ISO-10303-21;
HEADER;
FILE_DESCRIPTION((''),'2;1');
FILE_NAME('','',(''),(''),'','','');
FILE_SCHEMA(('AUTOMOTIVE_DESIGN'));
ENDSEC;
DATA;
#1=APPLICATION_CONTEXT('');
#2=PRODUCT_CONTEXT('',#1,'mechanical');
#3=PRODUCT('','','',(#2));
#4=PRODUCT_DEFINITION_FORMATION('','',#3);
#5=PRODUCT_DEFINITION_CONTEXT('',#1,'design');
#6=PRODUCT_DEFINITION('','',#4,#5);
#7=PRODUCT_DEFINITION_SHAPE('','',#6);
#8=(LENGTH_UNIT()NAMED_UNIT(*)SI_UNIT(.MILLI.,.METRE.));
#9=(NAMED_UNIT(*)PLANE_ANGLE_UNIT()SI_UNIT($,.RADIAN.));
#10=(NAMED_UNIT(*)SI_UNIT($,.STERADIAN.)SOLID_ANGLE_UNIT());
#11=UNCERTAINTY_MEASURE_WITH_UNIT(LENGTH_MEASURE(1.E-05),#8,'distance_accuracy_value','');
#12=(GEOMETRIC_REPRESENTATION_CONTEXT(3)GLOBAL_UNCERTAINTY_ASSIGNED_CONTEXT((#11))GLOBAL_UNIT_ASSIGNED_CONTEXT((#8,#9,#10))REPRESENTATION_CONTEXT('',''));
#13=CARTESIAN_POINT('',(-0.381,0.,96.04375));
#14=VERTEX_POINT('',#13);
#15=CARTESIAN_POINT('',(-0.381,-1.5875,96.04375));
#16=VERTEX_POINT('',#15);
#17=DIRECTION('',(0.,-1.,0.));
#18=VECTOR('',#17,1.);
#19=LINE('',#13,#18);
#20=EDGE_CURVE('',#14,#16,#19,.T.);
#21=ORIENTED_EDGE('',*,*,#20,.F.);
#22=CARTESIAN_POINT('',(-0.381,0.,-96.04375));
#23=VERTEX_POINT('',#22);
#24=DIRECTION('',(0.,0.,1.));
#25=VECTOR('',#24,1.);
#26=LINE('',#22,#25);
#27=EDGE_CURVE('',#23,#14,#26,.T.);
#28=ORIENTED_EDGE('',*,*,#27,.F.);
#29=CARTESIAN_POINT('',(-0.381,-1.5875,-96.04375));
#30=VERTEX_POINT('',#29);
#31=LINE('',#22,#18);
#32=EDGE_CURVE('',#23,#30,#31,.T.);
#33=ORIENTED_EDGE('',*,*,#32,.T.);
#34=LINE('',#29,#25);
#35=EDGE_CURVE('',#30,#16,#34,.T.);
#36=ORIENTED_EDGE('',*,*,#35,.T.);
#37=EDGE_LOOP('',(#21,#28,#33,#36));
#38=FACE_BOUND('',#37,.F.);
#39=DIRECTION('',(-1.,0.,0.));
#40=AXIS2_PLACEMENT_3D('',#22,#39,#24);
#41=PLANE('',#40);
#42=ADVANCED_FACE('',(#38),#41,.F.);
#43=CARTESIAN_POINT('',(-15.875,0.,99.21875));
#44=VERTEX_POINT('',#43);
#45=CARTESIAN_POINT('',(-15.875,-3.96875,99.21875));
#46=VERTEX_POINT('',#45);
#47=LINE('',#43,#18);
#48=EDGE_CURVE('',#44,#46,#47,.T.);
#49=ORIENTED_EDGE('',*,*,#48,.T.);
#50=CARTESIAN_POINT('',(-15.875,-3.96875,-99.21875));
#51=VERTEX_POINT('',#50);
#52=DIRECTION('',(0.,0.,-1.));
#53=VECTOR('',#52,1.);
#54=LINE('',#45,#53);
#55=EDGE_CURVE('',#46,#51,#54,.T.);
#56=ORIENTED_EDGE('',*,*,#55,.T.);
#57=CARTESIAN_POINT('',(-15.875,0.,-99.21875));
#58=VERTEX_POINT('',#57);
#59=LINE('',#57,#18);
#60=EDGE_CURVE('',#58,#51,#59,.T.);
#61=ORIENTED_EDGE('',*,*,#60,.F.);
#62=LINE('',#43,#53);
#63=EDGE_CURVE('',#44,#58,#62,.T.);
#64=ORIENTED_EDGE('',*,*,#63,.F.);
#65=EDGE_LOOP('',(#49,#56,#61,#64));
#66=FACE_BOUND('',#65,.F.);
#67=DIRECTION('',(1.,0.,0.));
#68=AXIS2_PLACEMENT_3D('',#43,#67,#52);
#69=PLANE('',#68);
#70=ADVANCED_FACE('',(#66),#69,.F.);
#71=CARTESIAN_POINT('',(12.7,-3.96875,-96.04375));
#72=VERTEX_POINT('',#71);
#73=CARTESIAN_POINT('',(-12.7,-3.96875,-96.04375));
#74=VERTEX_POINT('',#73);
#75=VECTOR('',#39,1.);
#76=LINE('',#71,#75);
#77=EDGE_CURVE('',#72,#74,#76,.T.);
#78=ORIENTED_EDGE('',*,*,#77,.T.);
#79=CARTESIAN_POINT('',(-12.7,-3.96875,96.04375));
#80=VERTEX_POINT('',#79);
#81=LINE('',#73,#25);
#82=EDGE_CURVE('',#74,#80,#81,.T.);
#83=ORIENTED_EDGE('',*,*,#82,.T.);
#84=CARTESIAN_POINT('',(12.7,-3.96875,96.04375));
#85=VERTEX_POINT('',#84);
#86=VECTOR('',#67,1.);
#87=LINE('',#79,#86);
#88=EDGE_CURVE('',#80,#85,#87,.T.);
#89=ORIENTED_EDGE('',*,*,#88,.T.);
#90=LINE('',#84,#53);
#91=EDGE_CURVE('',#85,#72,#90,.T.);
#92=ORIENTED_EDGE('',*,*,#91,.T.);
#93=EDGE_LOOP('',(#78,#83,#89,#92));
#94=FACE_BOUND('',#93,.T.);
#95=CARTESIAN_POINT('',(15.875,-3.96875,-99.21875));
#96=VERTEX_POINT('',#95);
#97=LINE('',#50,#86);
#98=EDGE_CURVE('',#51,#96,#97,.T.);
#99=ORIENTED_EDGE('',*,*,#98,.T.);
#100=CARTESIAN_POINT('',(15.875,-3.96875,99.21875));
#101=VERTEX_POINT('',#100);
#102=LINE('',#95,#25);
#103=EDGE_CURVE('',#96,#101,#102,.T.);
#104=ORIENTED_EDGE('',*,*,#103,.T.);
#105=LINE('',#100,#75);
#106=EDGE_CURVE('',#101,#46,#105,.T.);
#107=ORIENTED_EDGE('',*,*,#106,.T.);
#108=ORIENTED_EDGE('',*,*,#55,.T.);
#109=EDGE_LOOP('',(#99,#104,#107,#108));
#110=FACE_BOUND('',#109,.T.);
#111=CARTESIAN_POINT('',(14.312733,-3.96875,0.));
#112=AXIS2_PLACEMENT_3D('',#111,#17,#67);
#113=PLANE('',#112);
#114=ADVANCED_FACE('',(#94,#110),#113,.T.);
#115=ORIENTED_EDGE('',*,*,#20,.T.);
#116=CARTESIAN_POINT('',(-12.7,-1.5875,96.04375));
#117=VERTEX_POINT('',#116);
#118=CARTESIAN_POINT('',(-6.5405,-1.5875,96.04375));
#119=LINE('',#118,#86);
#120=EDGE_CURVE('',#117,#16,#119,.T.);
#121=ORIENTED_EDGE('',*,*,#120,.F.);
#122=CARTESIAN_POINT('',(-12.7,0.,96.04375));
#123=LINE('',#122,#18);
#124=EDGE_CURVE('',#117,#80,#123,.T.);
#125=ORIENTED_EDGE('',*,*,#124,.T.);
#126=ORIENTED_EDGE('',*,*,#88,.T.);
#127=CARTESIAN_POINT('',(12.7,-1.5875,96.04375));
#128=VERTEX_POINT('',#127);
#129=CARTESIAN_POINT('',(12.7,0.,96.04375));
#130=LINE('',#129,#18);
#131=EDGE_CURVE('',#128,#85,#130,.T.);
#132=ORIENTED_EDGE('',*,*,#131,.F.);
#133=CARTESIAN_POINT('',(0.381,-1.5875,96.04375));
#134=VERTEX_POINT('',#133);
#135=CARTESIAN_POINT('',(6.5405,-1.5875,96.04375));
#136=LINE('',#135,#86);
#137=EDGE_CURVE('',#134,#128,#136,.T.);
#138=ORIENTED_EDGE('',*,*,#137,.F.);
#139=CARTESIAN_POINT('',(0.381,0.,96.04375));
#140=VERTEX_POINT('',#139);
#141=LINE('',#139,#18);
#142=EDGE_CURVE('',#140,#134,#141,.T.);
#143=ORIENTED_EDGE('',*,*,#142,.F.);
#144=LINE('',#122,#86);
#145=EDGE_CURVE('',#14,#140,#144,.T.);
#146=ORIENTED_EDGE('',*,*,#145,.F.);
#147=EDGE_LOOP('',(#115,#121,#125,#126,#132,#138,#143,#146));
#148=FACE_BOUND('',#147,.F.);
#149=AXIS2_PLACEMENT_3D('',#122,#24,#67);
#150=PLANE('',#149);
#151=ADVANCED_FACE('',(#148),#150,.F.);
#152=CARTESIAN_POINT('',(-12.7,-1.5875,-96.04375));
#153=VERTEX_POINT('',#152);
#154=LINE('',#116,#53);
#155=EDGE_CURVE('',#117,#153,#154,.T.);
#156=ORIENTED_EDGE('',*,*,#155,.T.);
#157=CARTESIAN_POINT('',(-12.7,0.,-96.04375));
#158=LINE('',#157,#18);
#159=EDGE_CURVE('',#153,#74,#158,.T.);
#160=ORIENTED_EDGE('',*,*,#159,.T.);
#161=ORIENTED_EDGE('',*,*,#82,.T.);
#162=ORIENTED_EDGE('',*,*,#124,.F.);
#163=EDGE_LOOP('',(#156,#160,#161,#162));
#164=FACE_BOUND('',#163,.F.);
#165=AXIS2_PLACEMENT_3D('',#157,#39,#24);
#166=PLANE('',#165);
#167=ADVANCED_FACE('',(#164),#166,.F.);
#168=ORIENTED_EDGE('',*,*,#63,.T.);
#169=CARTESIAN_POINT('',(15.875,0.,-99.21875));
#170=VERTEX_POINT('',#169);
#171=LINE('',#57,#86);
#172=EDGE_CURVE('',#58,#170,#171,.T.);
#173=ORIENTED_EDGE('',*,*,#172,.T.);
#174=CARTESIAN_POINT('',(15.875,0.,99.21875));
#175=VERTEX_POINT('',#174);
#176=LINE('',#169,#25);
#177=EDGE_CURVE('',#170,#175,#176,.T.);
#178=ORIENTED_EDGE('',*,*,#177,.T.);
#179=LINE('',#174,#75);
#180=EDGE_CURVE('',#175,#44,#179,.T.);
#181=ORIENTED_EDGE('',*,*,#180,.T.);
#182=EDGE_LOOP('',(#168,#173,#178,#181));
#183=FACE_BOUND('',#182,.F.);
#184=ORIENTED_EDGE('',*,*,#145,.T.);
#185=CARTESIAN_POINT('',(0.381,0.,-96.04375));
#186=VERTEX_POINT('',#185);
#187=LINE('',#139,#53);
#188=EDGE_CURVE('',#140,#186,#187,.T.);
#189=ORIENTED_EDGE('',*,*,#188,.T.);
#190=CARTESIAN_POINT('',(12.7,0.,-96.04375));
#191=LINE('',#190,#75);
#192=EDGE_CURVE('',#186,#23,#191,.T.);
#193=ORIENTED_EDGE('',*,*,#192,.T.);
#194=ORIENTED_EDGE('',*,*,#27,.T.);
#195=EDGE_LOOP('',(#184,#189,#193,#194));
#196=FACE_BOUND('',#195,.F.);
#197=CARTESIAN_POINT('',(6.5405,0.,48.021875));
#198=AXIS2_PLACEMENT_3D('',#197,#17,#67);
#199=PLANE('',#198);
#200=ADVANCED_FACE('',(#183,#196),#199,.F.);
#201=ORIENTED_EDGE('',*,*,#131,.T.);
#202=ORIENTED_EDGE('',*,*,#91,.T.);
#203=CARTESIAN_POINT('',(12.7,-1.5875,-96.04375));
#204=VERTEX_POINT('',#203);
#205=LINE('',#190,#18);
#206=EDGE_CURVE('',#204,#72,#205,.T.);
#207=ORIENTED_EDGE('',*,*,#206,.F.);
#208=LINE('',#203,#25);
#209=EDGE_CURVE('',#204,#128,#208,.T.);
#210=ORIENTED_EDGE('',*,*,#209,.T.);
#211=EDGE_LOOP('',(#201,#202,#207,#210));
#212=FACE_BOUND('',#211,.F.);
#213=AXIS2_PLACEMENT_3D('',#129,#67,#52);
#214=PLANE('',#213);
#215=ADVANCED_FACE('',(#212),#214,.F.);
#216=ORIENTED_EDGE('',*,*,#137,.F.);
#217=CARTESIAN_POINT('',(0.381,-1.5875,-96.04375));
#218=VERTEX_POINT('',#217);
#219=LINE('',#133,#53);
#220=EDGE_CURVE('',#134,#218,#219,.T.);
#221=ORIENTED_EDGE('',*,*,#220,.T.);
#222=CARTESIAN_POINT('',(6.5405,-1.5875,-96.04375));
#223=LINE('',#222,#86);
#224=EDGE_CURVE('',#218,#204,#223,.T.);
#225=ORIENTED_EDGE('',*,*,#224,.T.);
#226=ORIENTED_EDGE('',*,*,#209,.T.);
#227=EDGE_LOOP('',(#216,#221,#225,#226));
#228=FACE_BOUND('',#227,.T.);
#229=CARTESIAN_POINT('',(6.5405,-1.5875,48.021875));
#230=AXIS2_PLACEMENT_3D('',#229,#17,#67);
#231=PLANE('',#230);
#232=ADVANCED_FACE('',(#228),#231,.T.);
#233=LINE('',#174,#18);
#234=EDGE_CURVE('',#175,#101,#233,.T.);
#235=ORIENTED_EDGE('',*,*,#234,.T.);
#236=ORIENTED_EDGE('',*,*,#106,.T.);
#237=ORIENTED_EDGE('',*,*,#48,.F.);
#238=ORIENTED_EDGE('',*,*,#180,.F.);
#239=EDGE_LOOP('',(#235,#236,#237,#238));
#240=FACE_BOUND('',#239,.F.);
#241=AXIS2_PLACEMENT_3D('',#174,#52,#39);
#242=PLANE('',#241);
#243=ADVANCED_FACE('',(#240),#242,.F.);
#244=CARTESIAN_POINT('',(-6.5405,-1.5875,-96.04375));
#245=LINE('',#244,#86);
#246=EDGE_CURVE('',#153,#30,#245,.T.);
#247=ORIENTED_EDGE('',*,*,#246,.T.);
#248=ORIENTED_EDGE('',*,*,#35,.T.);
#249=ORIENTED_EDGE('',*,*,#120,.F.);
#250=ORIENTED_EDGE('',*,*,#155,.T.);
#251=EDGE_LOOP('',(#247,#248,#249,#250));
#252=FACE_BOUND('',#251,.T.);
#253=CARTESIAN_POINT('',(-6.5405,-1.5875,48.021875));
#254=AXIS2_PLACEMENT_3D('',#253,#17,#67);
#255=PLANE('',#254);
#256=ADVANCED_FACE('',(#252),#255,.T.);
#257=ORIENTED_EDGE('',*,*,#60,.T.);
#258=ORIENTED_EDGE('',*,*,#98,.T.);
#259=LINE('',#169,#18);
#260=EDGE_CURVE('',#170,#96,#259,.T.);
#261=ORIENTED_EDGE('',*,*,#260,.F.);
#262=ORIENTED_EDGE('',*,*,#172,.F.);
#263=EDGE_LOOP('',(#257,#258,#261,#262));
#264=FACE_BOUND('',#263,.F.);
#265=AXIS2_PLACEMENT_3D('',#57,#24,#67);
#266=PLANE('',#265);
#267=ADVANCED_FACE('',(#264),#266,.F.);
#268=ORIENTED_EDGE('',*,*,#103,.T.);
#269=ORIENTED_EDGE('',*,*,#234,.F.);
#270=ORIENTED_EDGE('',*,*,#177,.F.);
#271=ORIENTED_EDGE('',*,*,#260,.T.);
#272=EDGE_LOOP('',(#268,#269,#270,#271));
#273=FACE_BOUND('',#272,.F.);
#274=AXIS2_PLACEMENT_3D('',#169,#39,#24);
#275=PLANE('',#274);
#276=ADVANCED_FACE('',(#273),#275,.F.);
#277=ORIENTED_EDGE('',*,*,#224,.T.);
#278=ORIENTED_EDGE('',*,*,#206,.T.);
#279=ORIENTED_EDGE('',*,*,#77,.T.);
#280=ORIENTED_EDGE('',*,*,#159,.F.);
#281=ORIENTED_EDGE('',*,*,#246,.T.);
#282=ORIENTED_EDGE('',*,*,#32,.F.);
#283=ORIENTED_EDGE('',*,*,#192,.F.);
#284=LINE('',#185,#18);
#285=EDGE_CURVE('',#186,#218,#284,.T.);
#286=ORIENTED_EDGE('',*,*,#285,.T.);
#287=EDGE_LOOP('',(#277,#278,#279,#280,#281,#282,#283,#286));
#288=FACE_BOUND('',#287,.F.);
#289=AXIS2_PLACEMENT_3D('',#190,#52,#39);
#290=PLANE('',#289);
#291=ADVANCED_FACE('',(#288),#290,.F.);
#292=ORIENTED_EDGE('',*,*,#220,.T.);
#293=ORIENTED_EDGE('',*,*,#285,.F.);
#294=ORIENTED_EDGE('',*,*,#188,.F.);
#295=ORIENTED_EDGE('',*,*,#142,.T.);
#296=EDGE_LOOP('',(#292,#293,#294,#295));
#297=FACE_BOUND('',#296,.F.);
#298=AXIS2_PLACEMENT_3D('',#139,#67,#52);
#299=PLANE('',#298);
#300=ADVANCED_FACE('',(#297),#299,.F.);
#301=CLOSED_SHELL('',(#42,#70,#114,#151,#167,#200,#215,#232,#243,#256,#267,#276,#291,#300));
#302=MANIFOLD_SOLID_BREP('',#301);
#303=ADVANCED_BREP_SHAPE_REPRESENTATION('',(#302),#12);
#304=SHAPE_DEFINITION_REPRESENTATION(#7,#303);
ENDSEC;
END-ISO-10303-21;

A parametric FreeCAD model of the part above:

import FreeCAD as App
import Part
import Sketcher

V = App.Vector
Q = App.Units.Quantity

doc = App.newDocument("Part")
body = doc.addObject("PartDesign::Body", "Body")

sketch1 = body.newObject("Sketcher::SketchObject", "Sketch")
sketch1.AttachmentSupport = (doc.getObject("XZ_Plane"), [""])
sketch1.MapMode = "FlatFace"
sketch1.addGeometry([
    Part.LineSegment(V(16, -99, 0), V(16, 99, 0)),
    Part.LineSegment(V(16, 99, 0), V(-16, 99, 0)),
    Part.LineSegment(V(-16, 99, 0), V(-16, -99, 0)),
    Part.LineSegment(V(-16, -99, 0), V(16, -99, 0)),
    Part.LineSegment(V(-13, -96, 0), V(-13, 96, 0)),
    Part.LineSegment(V(-13, 96, 0), V(13, 96, 0)),
    Part.LineSegment(V(13, 96, 0), V(13, -96, 0)),
    Part.LineSegment(V(13, -96, 0), V(-13, -96, 0)),
], False)
sketch1.addConstraint([
    Sketcher.Constraint("Coincident", 0, 2, 1, 1),
    Sketcher.Constraint("Coincident", 1, 2, 2, 1),
    Sketcher.Constraint("Coincident", 2, 2, 3, 1),
    Sketcher.Constraint("Coincident", 3, 2, 0, 1),
    Sketcher.Constraint("Coincident", 4, 2, 5, 1),
    Sketcher.Constraint("Coincident", 5, 2, 6, 1),
    Sketcher.Constraint("Coincident", 6, 2, 7, 1),
    Sketcher.Constraint("Coincident", 7, 2, 4, 1),
    Sketcher.Constraint("Vertical", 0),
    Sketcher.Constraint("Horizontal", 1),
    Sketcher.Constraint("Vertical", 2),
    Sketcher.Constraint("Horizontal", 3),
    Sketcher.Constraint("Vertical", 4),
    Sketcher.Constraint("Horizontal", 5),
    Sketcher.Constraint("Vertical", 6),
    Sketcher.Constraint("Horizontal", 7),
    Sketcher.Constraint("Symmetric", 0, 2, 2, 2, -1, 1),
    Sketcher.Constraint("Symmetric", 4, 2, 6, 2, -1, 1),
    Sketcher.Constraint("DistanceX", 5, 1, 5, 2, Q("1 in")),
    Sketcher.Constraint("DistanceX", 1, 2, 1, 1, Q("1.25 in")),
    Sketcher.Constraint("DistanceY", 0, 1, 0, 2, Q("7.8125 in")),
    Sketcher.Constraint("DistanceY", 4, 1, 4, 2, Q("7.5625 in")),
])
pad1 = body.newObject("PartDesign::Pad", "Pad")
pad1.Profile = sketch1
pad1.Length = Q("0.15625 in")

sketch2 = body.newObject("Sketcher::SketchObject", "Sketch001")
sketch2.AttachmentSupport = (doc.getObject("XZ_Plane"), [""])
sketch2.MapMode = "FlatFace"
sketch2.addGeometry([
    Part.LineSegment(V(0, 96, 0), V(0, -96, 0)),
    Part.LineSegment(V(0, -96, 0), V(13, -96, 0)),
    Part.LineSegment(V(13, -96, 0), V(13, 96, 0)),
    Part.LineSegment(V(13, 96, 0), V(0, 96, 0)),
    Part.LineSegment(V(-13, 96, 0), V(-13, -96, 0)),
    Part.LineSegment(V(-13, -96, 0), V(0, -96, 0)),
    Part.LineSegment(V(0, -96, 0), V(0, 96, 0)),
    Part.LineSegment(V(0, 96, 0), V(-13, 96, 0)),
], False)
sketch2.addConstraint([
    Sketcher.Constraint("Coincident", 0, 2, 1, 1),
    Sketcher.Constraint("Coincident", 1, 2, 2, 1),
    Sketcher.Constraint("Coincident", 2, 2, 3, 1),
    Sketcher.Constraint("Coincident", 3, 2, 0, 1),
    Sketcher.Constraint("Coincident", 4, 2, 5, 1),
    Sketcher.Constraint("Coincident", 5, 2, 6, 1),
    Sketcher.Constraint("Coincident", 6, 2, 7, 1),
    Sketcher.Constraint("Coincident", 7, 2, 4, 1),
    Sketcher.Constraint("Vertical", 0),
    Sketcher.Constraint("Horizontal", 1),
    Sketcher.Constraint("Vertical", 2),
    Sketcher.Constraint("Horizontal", 3),
    Sketcher.Constraint("Vertical", 4),
    Sketcher.Constraint("Horizontal", 5),
    Sketcher.Constraint("Vertical", 6),
    Sketcher.Constraint("Horizontal", 7),
    Sketcher.Constraint("Symmetric", 2, 2, 4, 2, -1, 1),
    Sketcher.Constraint("Symmetric", 0, 2, 6, 2, -1, 1),
    Sketcher.Constraint("Horizontal", 1, 2, 4, 2),
    Sketcher.Constraint("DistanceX", 4, 2, 1, 2, Q("1 in")),
    Sketcher.Constraint("DistanceX", 1, 1, 1, 2, Q("0.485 in")),
    Sketcher.Constraint("DistanceY", 0, 2, 0, 1, Q("7.5625 in")),
])
pad2 = body.newObject("PartDesign::Pad", "Pad001")
pad2.Profile = sketch2
pad2.Length = Q("0.0625 in")

doc.recompute()
